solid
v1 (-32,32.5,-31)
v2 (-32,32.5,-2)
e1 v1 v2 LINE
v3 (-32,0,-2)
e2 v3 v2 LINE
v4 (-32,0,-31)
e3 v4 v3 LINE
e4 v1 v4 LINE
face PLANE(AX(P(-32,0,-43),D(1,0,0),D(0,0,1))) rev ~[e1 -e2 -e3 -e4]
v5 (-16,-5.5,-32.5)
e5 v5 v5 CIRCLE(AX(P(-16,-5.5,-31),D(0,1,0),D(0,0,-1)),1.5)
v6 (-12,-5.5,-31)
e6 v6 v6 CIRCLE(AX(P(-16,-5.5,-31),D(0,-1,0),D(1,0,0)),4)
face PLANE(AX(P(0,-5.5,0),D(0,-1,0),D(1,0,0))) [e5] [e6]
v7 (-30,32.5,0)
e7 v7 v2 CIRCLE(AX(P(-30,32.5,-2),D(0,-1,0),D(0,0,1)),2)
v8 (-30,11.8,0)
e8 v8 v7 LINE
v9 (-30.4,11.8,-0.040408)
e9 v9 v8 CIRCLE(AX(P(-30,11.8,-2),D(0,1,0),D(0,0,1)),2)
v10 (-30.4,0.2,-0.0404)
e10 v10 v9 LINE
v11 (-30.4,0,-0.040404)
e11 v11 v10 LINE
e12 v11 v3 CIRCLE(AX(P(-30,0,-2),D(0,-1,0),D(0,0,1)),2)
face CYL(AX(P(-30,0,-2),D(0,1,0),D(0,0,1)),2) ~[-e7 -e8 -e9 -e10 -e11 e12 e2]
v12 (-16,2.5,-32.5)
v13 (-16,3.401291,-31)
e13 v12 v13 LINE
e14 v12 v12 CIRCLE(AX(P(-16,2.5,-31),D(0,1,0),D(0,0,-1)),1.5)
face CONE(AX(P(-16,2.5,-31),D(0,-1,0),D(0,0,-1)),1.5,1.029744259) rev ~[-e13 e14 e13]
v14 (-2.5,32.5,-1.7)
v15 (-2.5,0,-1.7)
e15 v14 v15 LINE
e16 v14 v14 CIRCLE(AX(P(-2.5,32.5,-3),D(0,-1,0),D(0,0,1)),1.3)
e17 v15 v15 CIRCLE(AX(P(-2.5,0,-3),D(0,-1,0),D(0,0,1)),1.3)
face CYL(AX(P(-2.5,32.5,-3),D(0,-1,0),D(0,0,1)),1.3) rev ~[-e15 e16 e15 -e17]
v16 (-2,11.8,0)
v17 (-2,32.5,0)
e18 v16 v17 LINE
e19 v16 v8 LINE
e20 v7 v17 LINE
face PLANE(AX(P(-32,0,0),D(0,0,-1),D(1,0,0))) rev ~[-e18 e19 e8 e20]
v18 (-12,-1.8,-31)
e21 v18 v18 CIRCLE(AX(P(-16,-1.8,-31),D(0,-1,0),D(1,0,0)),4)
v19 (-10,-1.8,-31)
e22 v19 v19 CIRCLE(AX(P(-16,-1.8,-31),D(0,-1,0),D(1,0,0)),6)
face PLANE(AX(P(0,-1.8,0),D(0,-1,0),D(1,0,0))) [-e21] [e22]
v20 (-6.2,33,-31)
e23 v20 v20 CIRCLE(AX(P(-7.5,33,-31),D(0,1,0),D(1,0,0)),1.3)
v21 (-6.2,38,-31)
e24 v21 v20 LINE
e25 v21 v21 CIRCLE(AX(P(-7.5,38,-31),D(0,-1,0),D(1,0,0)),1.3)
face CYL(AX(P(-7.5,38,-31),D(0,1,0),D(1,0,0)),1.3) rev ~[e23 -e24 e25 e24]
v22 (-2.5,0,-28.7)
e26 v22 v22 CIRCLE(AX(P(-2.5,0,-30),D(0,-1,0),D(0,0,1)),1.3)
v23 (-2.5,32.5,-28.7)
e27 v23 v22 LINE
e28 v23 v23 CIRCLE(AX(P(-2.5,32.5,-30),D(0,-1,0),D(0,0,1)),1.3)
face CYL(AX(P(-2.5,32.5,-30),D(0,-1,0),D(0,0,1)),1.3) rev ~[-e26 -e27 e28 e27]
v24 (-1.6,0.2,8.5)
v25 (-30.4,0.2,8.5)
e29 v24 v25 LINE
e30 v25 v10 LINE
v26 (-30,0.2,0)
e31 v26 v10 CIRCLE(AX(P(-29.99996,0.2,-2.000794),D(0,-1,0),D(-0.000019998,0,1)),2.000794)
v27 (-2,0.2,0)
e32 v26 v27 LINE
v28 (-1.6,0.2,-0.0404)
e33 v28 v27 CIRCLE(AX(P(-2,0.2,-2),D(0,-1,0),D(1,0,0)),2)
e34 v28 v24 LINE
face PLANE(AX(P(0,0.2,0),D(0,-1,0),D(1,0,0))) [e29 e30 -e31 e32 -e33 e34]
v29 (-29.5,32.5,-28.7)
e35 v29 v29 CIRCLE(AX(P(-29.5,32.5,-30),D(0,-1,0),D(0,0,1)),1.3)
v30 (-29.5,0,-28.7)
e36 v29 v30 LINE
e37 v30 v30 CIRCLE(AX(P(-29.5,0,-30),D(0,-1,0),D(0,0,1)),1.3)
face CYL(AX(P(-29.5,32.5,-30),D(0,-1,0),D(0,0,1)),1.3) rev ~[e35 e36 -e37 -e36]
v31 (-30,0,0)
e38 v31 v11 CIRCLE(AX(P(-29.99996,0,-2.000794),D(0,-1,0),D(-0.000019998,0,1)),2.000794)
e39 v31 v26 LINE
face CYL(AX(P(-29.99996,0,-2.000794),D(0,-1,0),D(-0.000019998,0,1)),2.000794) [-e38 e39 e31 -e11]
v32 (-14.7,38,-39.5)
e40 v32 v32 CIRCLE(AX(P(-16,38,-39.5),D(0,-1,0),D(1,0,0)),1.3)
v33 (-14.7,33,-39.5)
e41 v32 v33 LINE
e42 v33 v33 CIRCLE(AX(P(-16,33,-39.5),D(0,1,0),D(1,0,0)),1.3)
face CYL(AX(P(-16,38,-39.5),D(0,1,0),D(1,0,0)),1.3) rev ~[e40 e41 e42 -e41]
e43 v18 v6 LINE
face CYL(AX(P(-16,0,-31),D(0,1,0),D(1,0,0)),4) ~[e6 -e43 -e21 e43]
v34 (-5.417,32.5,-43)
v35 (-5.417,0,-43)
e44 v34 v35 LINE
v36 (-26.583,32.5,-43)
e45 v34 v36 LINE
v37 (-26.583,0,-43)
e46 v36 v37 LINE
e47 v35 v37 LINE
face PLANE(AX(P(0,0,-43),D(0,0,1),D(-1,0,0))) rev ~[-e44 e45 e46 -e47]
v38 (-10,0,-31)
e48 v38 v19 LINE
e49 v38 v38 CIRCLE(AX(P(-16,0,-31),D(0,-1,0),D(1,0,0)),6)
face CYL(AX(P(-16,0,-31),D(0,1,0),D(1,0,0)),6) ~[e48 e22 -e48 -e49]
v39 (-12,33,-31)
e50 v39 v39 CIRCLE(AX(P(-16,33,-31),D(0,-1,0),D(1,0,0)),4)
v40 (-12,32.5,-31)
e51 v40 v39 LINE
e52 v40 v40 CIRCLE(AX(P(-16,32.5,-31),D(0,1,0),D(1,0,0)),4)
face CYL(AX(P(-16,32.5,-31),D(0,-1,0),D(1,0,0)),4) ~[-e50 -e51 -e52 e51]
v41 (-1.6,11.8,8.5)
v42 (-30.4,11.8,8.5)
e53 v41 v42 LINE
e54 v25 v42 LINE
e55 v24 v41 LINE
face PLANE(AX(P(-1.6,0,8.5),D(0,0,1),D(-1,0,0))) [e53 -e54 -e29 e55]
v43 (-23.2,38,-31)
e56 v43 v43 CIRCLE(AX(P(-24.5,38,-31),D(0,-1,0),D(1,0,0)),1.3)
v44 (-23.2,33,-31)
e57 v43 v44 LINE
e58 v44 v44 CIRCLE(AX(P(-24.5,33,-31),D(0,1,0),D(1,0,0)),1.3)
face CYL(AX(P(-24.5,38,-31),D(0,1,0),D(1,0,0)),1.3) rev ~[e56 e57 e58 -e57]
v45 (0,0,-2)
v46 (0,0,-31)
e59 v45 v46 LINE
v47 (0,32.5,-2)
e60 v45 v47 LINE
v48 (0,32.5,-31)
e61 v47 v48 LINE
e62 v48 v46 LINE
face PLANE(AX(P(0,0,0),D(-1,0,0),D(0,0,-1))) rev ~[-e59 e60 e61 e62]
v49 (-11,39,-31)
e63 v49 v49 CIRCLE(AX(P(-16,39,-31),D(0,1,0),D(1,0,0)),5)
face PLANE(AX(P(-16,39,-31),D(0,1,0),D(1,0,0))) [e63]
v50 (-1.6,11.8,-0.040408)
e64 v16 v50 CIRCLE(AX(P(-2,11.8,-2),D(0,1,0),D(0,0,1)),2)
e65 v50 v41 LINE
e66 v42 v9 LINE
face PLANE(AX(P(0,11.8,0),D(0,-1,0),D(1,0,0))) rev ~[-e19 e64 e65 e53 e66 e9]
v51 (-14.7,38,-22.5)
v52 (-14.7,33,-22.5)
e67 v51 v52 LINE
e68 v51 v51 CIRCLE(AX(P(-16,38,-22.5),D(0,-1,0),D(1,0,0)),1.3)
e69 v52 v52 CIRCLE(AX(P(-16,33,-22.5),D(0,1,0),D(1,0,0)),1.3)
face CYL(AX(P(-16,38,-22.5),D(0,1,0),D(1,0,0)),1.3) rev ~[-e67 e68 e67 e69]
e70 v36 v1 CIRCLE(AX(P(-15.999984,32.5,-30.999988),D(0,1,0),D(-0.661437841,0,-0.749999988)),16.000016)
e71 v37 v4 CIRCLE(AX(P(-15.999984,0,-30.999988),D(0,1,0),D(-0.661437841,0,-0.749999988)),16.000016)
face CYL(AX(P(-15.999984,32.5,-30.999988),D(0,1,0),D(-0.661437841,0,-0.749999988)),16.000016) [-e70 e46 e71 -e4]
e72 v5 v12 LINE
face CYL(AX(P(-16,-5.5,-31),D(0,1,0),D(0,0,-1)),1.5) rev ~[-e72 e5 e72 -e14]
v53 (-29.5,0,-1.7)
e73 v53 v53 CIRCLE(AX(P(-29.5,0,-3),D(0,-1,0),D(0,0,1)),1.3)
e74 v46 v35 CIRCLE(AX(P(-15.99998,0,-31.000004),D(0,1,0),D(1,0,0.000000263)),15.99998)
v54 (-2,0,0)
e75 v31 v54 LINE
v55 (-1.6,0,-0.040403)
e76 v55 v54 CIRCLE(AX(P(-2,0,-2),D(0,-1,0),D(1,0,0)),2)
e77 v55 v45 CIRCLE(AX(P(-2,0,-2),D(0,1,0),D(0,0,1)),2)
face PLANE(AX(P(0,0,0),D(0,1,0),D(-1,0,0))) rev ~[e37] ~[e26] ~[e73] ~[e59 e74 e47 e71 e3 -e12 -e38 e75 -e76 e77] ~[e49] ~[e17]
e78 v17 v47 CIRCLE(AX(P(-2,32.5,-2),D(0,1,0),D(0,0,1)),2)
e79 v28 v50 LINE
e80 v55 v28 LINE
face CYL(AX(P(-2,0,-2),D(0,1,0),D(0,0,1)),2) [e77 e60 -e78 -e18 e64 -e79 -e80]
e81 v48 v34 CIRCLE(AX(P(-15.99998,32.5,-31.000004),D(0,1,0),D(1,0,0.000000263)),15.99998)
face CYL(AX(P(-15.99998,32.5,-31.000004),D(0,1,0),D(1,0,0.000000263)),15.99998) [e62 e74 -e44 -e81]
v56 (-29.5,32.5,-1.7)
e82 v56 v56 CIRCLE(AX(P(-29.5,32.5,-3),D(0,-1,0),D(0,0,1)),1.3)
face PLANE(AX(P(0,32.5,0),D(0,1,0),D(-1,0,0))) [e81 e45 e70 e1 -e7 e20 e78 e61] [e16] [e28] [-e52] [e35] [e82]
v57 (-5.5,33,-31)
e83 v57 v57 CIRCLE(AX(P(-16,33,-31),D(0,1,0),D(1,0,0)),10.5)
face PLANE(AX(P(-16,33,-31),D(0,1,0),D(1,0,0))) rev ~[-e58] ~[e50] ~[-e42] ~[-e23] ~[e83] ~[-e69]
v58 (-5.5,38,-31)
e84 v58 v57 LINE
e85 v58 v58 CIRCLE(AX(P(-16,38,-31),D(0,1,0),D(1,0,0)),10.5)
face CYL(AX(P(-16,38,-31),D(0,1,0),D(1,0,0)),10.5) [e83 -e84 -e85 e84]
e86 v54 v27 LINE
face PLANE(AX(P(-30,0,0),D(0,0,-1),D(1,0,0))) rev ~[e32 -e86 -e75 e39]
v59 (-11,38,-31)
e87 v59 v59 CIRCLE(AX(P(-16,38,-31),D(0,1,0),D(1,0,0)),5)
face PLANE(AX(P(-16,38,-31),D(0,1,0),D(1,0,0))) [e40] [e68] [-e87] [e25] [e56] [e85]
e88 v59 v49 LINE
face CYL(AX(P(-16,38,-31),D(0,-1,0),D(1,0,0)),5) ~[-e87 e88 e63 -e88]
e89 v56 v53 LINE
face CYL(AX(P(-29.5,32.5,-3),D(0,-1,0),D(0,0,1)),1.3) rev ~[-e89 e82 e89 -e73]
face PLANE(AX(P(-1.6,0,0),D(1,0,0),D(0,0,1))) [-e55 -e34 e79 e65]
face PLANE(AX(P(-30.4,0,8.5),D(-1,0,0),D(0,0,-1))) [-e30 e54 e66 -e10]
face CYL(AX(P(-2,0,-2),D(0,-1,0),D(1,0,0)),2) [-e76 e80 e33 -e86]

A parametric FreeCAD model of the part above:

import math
import FreeCAD as App
import Part
import Sketcher
Q = App.Units.Quantity


def edges_at(feature, points):
    """Names of the edges that pass closest to the given points."""
    edges = feature.Shape.Edges
    near = lambda p: min(range(len(edges)), key=lambda i: edges[i].distToShape(Part.Vertex(*p))[0])
    return sorted({f"Edge{near(p) + 1}" for p in points})


def add_polygon(sketch, points):
    """Adds a closed chain of lines whose ends are joined by coincident constraints."""
    first, n = sketch.GeometryCount, len(points)
    for a, b in zip(points, points[1:] + points[:1]):
        sketch.addGeometry(Part.LineSegment(App.Vector(*a, 0), App.Vector(*b, 0)), False)
    for i in range(n):
        sketch.addConstraint(Sketcher.Constraint("Coincident", first + i, 2, first + (i + 1) % n, 1))

doc = App.newDocument("Part")
body = doc.addObject("PartDesign::Body", "Body")

sketch1 = body.newObject("Sketcher::SketchObject", "Sketch")
sketch1.AttachmentSupport = (doc.getObject("XZ_Plane"), [""])
sketch1.MapMode = "FlatFace"
add_polygon(sketch1, [(-32, 0), (0, 0), (0, -43), (-32, -43)])
sketch1.addConstraint(Sketcher.Constraint("Horizontal", 0))
sketch1.addConstraint(Sketcher.Constraint("Vertical", 1))
sketch1.addConstraint(Sketcher.Constraint("Horizontal", 2))
sketch1.addConstraint(Sketcher.Constraint("Vertical", 3))
sketch1.addConstraint(Sketcher.Constraint("Coincident", 0, 2, -1, 1))
sketch1.addConstraint(Sketcher.Constraint("DistanceX", 0, 1, 0, 2, Q("32 mm")))
sketch1.addConstraint(Sketcher.Constraint("DistanceY", 1, 2, 1, 1, Q("43 mm")))
pad1 = body.newObject("PartDesign::Pad", "Pad")
pad1.Profile = sketch1
pad1.Length = 32.5
pad1.Reversed = True
doc.recompute()

fillet = body.newObject("PartDesign::Fillet", "Fillet")
fillet.Base = (pad1, edges_at(pad1, [(-32, 16.25, 0), (0, 16.25, 0)]))
fillet.Radius = 2

sketch2 = body.newObject("Sketcher::SketchObject", "Sketch001")
sketch2.AttachmentSupport = (doc.getObject("XZ_Plane"), [""])
sketch2.MapMode = "FlatFace"
sketch2.AttachmentOffset = App.Placement(App.Vector(0, 0, -32.5), App.Rotation())
sketch2.addGeometry(Part.Circle(App.Vector(-2.5, -3, 0), App.Vector(0, 0, 1), 1.3), False)
sketch2.addGeometry(Part.Circle(App.Vector(-29.5, -3, 0), App.Vector(0, 0, 1), 1.3), False)
sketch2.addGeometry(Part.Circle(App.Vector(-29.5, -30, 0), App.Vector(0, 0, 1), 1.3), False)
sketch2.addGeometry(Part.Circle(App.Vector(-2.5, -30, 0), App.Vector(0, 0, 1), 1.3), False)
sketch2.addConstraint(Sketcher.Constraint("Equal", 0, 1))
sketch2.addConstraint(Sketcher.Constraint("Equal", 1, 2))
sketch2.addConstraint(Sketcher.Constraint("Equal", 2, 3))
sketch2.addConstraint(Sketcher.Constraint("Horizontal", 0, 3, 1, 3))
sketch2.addConstraint(Sketcher.Constraint("Horizontal", 2, 3, 3, 3))
sketch2.addConstraint(Sketcher.Constraint("Vertical", 1, 3, 2, 3))
sketch2.addConstraint(Sketcher.Constraint("Vertical", 0, 3, 3, 3))
sketch2.addConstraint(Sketcher.Constraint("Diameter", 0, Q("2.6 mm")))
sketch2.addConstraint(Sketcher.Constraint("DistanceY", 0, 3, -1, 1, Q("3 mm")))
sketch2.addConstraint(Sketcher.Constraint("DistanceY", 2, 3, -1, 1, Q("30 mm")))
sketch2.addConstraint(Sketcher.Constraint("DistanceX", 1, 3, 0, 3, Q("27 mm")))
sketch2.addConstraint(Sketcher.Constraint("DistanceX", 0, 3, -1, 1, Q("2.5 mm")))
doc.recompute()
hole = body.newObject("PartDesign::Hole", "Hole")
hole.Profile = sketch2
hole.ThreadType = "None"
hole.Diameter = 2.6
hole.DepthType = "ThroughAll"
hole.Reversed = True

sketch3 = body.newObject("Sketcher::SketchObject", "Sketch002")
sketch3.AttachmentSupport = (doc.getObject("XZ_Plane"), [""])
sketch3.MapMode = "FlatFace"
sketch3.AttachmentOffset = App.Placement(App.Vector(0, 0, -32.5), App.Rotation())
sketch3.addGeometry(Part.LineSegment(App.Vector(0, -31, 0), App.Vector(0, -43, 0)), False)
sketch3.addGeometry(Part.LineSegment(App.Vector(0, -43, 0), App.Vector(-5, -43, 0)), False)
sketch3.addGeometry(Part.ArcOfCircle(Part.Circle(App.Vector(-16, -31, 0), App.Vector(0, 0, 1), 16), math.radians(-49), math.radians(0)), False)
sketch3.addGeometry(Part.ArcOfCircle(Part.Circle(App.Vector(-16, -31, 0), App.Vector(0, 0, 1), 16), math.radians(180), math.radians(229)), False)
sketch3.addGeometry(Part.LineSegment(App.Vector(-27, -43, 0), App.Vector(-32, -43, 0)), False)
sketch3.addGeometry(Part.LineSegment(App.Vector(-32, -43, 0), App.Vector(-32, -31, 0)), False)
sketch3.addConstraint(Sketcher.Constraint("Coincident", 0, 2, 1, 1))
sketch3.addConstraint(Sketcher.Constraint("Coincident", 1, 2, 2, 1))
sketch3.addConstraint(Sketcher.Constraint("Tangent", 2, 2, 0, 1))
sketch3.addConstraint(Sketcher.Constraint("Coincident", 3, 2, 4, 1))
sketch3.addConstraint(Sketcher.Constraint("Coincident", 4, 2, 5, 1))
sketch3.addConstraint(Sketcher.Constraint("Tangent", 5, 2, 3, 1))
sketch3.addConstraint(Sketcher.Constraint("Vertical", 0))
sketch3.addConstraint(Sketcher.Constraint("Horizontal", 1))
sketch3.addConstraint(Sketcher.Constraint("Horizontal", 4))
sketch3.addConstraint(Sketcher.Constraint("Vertical", 5))
sketch3.addConstraint(Sketcher.Constraint("Coincident", 3, 3, 2, 3))
sketch3.addConstraint(Sketcher.Constraint("Equal", 2, 3))
sketch3.addConstraint(Sketcher.Constraint("PointOnObject", 0, 2, -2))
sketch3.addConstraint(Sketcher.Constraint("Horizontal", 1, 2, 3, 2))
sketch3.addConstraint(Sketcher.Constraint("Radius", 2, Q("16 mm")))
sketch3.addConstraint(Sketcher.Constraint("DistanceY", 0, 2, 0, 1, Q("12 mm")))
sketch3.addConstraint(Sketcher.Constraint("DistanceY", 2, 3, -1, 1, Q("31 mm")))
pocket1 = body.newObject("PartDesign::Pocket", "Pocket")
pocket1.Profile = sketch3
pocket1.Length = 32.5
pocket1.Reversed = True

sketch4 = body.newObject("Sketcher::SketchObject", "Sketch003")
sketch4.AttachmentSupport = (doc.getObject("XZ_Plane"), [""])
sketch4.MapMode = "FlatFace"
sketch4.AttachmentOffset = App.Placement(App.Vector(0, 0, -32.5), App.Rotation())
sketch4.addGeometry(Part.Circle(App.Vector(-16, -31, 0), App.Vector(0, 0, 1), 4), False)
sketch4.addConstraint(Sketcher.Constraint("Diameter", 0, Q("8 mm")))
sketch4.addConstraint(Sketcher.Constraint("DistanceX", 0, 3, -1, 1, Q("16 mm")))
sketch4.addConstraint(Sketcher.Constraint("DistanceY", 0, 3, -1, 1, Q("31 mm")))
pad2 = body.newObject("PartDesign::Pad", "Pad001")
pad2.Profile = sketch4
pad2.Length = 5
pad2.Reversed = True

sketch5 = body.newObject("Sketcher::SketchObject", "Sketch004")
sketch5.AttachmentSupport = (doc.getObject("XZ_Plane"), [""])
sketch5.MapMode = "FlatFace"
sketch5.addGeometry(Part.Circle(App.Vector(-16, -31, 0), App.Vector(0, 0, 1), 4), False)
sketch5.addConstraint(Sketcher.Constraint("Diameter", 0, Q("8 mm")))
sketch5.addConstraint(Sketcher.Constraint("DistanceX", 0, 3, -1, 1, Q("16 mm")))
sketch5.addConstraint(Sketcher.Constraint("DistanceY", 0, 3, -1, 1, Q("31 mm")))
pad3 = body.newObject("PartDesign::Pad", "Pad002")
pad3.Profile = sketch5
pad3.Length = 5.5

sketch6 = body.newObject("Sketcher::SketchObject", "Sketch005")
sketch6.AttachmentSupport = (doc.getObject("XZ_Plane"), [""])
sketch6.MapMode = "FlatFace"
add_polygon(sketch6, [(-2, 0), (-2, 8), (-30, 8), (-30, 0)])
sketch6.addConstraint(Sketcher.Constraint("Vertical", 0))
sketch6.addConstraint(Sketcher.Constraint("Horizontal", 1))
sketch6.addConstraint(Sketcher.Constraint("Vertical", 2))
sketch6.addConstraint(Sketcher.Constraint("Horizontal", 3))
sketch6.addConstraint(Sketcher.Constraint("DistanceX", 1, 2, 1, 1, Q("28.8 mm")))
sketch6.addConstraint(Sketcher.Constraint("DistanceY", -1, 1, 0, 2, Q("8.5 mm")))
sketch6.addConstraint(Sketcher.Constraint("DistanceX", 0, 2, -1, 1, Q("1.6 mm")))
sketch6.addConstraint(Sketcher.Constraint("DistanceY", 0, 1, 0, 2, Q("8.6236 mm")))
pad4 = body.newObject("PartDesign::Pad", "Pad003")
pad4.Profile = sketch6
pad4.Length = 11.8
pad4.Reversed = True

sketch7 = body.newObject("Sketcher::SketchObject", "Sketch006")
sketch7.AttachmentSupport = (doc.getObject("XZ_Plane"), [""])
sketch7.MapMode = "FlatFace"
sketch7.addGeometry(Part.ArcOfCircle(Part.Circle(App.Vector(-2, -2, 0), App.Vector(0, 0, 1), 2), math.radians(78.46), math.radians(90)), False)
sketch7.addGeometry(Part.LineSegment(App.Vector(-1.6, -0.04, 0), App.Vector(-1.6, 8.5, 0)), False)
sketch7.addGeometry(Part.LineSegment(App.Vector(-1.6, 8.5, 0), App.Vector(-30.4, 8.5, 0)), False)
sketch7.addGeometry(Part.LineSegment(App.Vector(-30.4, 8.5, 0), App.Vector(-30.4, -0.04, 0)), False)
sketch7.addGeometry(Part.ArcOfCircle(Part.Circle(App.Vector(-30, -2, 0), App.Vector(0, 0, 1), 2), math.radians(90), math.radians(101.54)), False)
sketch7.addGeometry(Part.LineSegment(App.Vector(-30, 0, 0), App.Vector(-2, 0, 0)), False)
sketch7.addConstraint(Sketcher.Constraint("Coincident", 0, 1, 1, 1))
sketch7.addConstraint(Sketcher.Constraint("Coincident", 1, 2, 2, 1))
sketch7.addConstraint(Sketcher.Constraint("Coincident", 2, 2, 3, 1))
sketch7.addConstraint(Sketcher.Constraint("Coincident", 3, 2, 4, 2))
sketch7.addConstraint(Sketcher.Constraint("Tangent", 4, 1, 5, 1))
sketch7.addConstraint(Sketcher.Constraint("Tangent", 5, 2, 0, 2))
sketch7.addConstraint(Sketcher.Constraint("Vertical", 1))
sketch7.addConstraint(Sketcher.Constraint("Horizontal", 2))
sketch7.addConstraint(Sketcher.Constraint("Vertical", 3))
sketch7.addConstraint(Sketcher.Constraint("Horizontal", 5))
sketch7.addConstraint(Sketcher.Constraint("Equal", 0, 4))
sketch7.addConstraint(Sketcher.Constraint("PointOnObject", 4, 1, -1))
sketch7.addConstraint(Sketcher.Constraint("Horizontal", 0, 1, 3, 2))
sketch7.addConstraint(Sketcher.Constraint("Radius", 0, Q("2 mm")))
sketch7.addConstraint(Sketcher.Constraint("DistanceX", 5, 1, 5, 2, Q("28 mm")))
sketch7.addConstraint(Sketcher.Constraint("DistanceX", 2, 2, 2, 1, Q("28.8 mm")))
sketch7.addConstraint(Sketcher.Constraint("DistanceX", 0, 3, -1, 1, Q("2 mm")))
sketch7.addConstraint(Sketcher.Constraint("DistanceY", -1, 1, 1, 2, Q("8.5 mm")))
pocket2 = body.newObject("PartDesign::Pocket", "Pocket001")
pocket2.Profile = sketch7
pocket2.Length = 0.2

sketch8 = body.newObject("Sketcher::SketchObject", "Sketch007")
sketch8.AttachmentSupport = (doc.getObject("XZ_Plane"), [""])
sketch8.MapMode = "FlatFace"
sketch8.AttachmentOffset = App.Placement(App.Vector(0, 0, -38), App.Rotation())
sketch8.addGeometry(Part.Circle(App.Vector(-16, -31, 0), App.Vector(0, 0, 1), 10), False)
sketch8.addConstraint(Sketcher.Constraint("Diameter", 0, Q("21 mm")))
sketch8.addConstraint(Sketcher.Constraint("DistanceX", 0, 3, -1, 1, Q("16 mm")))
sketch8.addConstraint(Sketcher.Constraint("DistanceY", 0, 3, -1, 1, Q("31 mm")))
pad5 = body.newObject("PartDesign::Pad", "Pad004")
pad5.Profile = sketch8
pad5.Length = 5

sketch9 = body.newObject("Sketcher::SketchObject", "Sketch008")
sketch9.AttachmentSupport = (doc.getObject("XZ_Plane"), [""])
sketch9.MapMode = "FlatFace"
sketch9.AttachmentOffset = App.Placement(App.Vector(0, 0, -38), App.Rotation())
sketch9.addGeometry(Part.Circle(App.Vector(-16, -31, 0), App.Vector(0, 0, 1), 5), False)
sketch9.addConstraint(Sketcher.Constraint("Diameter", 0, Q("10 mm")))
sketch9.addConstraint(Sketcher.Constraint("DistanceX", 0, 3, -1, 1, Q("16 mm")))
sketch9.addConstraint(Sketcher.Constraint("DistanceY", 0, 3, -1, 1, Q("31 mm")))
pad6 = body.newObject("PartDesign::Pad", "Pad005")
pad6.Profile = sketch9
pad6.Length = 1
pad6.Reversed = True

sketch10 = body.newObject("Sketcher::SketchObject", "Sketch009")
sketch10.AttachmentSupport = (doc.getObject("XZ_Plane"), [""])
sketch10.MapMode = "FlatFace"
sketch10.AttachmentOffset = App.Placement(App.Vector(0, 0, -38), App.Rotation())
sketch10.addGeometry(Part.Circle(App.Vector(-7.5, -31, 0), App.Vector(0, 0, 1), 1.3), False)
sketch10.addGeometry(Part.Circle(App.Vector(-16, -39.5, 0), App.Vector(0, 0, 1), 1.3), False)
sketch10.addGeometry(Part.Circle(App.Vector(-16, -22.5, 0), App.Vector(0, 0, 1), 1.3), False)
sketch10.addGeometry(Part.Circle(App.Vector(-24.5, -31, 0), App.Vector(0, 0, 1), 1.3), False)
sketch10.addConstraint(Sketcher.Constraint("Equal", 0, 1))
sketch10.addConstraint(Sketcher.Constraint("Equal", 1, 2))
sketch10.addConstraint(Sketcher.Constraint("Equal", 2, 3))
sketch10.addConstraint(Sketcher.Constraint("Horizontal", 0, 3, 3, 3))
sketch10.addConstraint(Sketcher.Constraint("Vertical", 1, 3, 2, 3))
sketch10.addConstraint(Sketcher.Constraint("Diameter", 0, Q("2.6 mm")))
sketch10.addConstraint(Sketcher.Constraint("DistanceY", 1, 3, 2, 3, Q("17 mm")))
sketch10.addConstraint(Sketcher.Constraint("DistanceX", 3, 3, 0, 3, Q("17 mm")))
sketch10.addConstraint(Sketcher.Constraint("DistanceY", 0, 3, -1, 1, Q("31 mm")))
sketch10.addConstraint(Sketcher.Constraint("DistanceX", 1, 3, -1, 1, Q("16 mm")))
sketch10.addConstraint(Sketcher.Constraint("DistanceX", 0, 3, -1, 1, Q("7.5 mm")))
sketch10.addConstraint(Sketcher.Constraint("DistanceY", 1, 3, -1, 1, Q("39.5 mm")))
pocket3 = body.newObject("PartDesign::Pocket", "Pocket002")
pocket3.Profile = sketch10
pocket3.Length = 5
pocket3.Reversed = True

sketch11 = body.newObject("Sketcher::SketchObject", "Sketch010")
sketch11.AttachmentSupport = (doc.getObject("XZ_Plane"), [""])
sketch11.MapMode = "FlatFace"
sketch11.addGeometry(Part.Circle(App.Vector(-16, -31, 0), App.Vector(0, 0, 1), 6), False)
sketch11.addGeometry(Part.Circle(App.Vector(-16, -31, 0), App.Vector(0, 0, 1), 4), False)
sketch11.addConstraint(Sketcher.Constraint("Coincident", 1, 3, 0, 3))
sketch11.addConstraint(Sketcher.Constraint("Diameter", 0, Q("12 mm")))
sketch11.addConstraint(Sketcher.Constraint("Diameter", 1, Q("8 mm")))
sketch11.addConstraint(Sketcher.Constraint("DistanceX", 0, 3, -1, 1, Q("16 mm")))
sketch11.addConstraint(Sketcher.Constraint("DistanceY", 0, 3, -1, 1, Q("31 mm")))
pad7 = body.newObject("PartDesign::Pad", "Pad006")
pad7.Profile = sketch11
pad7.Length = 1.8

sketch12 = body.newObject("Sketcher::SketchObject", "Sketch011")
sketch12.AttachmentSupport = (doc.getObject("XZ_Plane"), [""])
sketch12.MapMode = "FlatFace"
sketch12.AttachmentOffset = App.Placement(App.Vector(0, 0, 5.5), App.Rotation())
sketch12.addGeometry(Part.Circle(App.Vector(-16, -31, 0), App.Vector(0, 0, 1), 1.5), False)
sketch12.addConstraint(Sketcher.Constraint("Diameter", 0, Q("3 mm")))
sketch12.addConstraint(Sketcher.Constraint("DistanceX", 0, 3, -1, 1, Q("16 mm")))
sketch12.addConstraint(Sketcher.Constraint("DistanceY", 0, 3, -1, 1, Q("31 mm")))
doc.recompute()
hole2 = body.newObject("PartDesign::Hole", "Hole001")
hole2.Profile = sketch12
hole2.ThreadType = "None"
hole2.Diameter = 3
hole2.DepthType = "Dimension"
hole2.Depth = 8
hole2.DrillPoint = "Angled"
hole2.DrillPointAngle = 118

doc.recompute()
